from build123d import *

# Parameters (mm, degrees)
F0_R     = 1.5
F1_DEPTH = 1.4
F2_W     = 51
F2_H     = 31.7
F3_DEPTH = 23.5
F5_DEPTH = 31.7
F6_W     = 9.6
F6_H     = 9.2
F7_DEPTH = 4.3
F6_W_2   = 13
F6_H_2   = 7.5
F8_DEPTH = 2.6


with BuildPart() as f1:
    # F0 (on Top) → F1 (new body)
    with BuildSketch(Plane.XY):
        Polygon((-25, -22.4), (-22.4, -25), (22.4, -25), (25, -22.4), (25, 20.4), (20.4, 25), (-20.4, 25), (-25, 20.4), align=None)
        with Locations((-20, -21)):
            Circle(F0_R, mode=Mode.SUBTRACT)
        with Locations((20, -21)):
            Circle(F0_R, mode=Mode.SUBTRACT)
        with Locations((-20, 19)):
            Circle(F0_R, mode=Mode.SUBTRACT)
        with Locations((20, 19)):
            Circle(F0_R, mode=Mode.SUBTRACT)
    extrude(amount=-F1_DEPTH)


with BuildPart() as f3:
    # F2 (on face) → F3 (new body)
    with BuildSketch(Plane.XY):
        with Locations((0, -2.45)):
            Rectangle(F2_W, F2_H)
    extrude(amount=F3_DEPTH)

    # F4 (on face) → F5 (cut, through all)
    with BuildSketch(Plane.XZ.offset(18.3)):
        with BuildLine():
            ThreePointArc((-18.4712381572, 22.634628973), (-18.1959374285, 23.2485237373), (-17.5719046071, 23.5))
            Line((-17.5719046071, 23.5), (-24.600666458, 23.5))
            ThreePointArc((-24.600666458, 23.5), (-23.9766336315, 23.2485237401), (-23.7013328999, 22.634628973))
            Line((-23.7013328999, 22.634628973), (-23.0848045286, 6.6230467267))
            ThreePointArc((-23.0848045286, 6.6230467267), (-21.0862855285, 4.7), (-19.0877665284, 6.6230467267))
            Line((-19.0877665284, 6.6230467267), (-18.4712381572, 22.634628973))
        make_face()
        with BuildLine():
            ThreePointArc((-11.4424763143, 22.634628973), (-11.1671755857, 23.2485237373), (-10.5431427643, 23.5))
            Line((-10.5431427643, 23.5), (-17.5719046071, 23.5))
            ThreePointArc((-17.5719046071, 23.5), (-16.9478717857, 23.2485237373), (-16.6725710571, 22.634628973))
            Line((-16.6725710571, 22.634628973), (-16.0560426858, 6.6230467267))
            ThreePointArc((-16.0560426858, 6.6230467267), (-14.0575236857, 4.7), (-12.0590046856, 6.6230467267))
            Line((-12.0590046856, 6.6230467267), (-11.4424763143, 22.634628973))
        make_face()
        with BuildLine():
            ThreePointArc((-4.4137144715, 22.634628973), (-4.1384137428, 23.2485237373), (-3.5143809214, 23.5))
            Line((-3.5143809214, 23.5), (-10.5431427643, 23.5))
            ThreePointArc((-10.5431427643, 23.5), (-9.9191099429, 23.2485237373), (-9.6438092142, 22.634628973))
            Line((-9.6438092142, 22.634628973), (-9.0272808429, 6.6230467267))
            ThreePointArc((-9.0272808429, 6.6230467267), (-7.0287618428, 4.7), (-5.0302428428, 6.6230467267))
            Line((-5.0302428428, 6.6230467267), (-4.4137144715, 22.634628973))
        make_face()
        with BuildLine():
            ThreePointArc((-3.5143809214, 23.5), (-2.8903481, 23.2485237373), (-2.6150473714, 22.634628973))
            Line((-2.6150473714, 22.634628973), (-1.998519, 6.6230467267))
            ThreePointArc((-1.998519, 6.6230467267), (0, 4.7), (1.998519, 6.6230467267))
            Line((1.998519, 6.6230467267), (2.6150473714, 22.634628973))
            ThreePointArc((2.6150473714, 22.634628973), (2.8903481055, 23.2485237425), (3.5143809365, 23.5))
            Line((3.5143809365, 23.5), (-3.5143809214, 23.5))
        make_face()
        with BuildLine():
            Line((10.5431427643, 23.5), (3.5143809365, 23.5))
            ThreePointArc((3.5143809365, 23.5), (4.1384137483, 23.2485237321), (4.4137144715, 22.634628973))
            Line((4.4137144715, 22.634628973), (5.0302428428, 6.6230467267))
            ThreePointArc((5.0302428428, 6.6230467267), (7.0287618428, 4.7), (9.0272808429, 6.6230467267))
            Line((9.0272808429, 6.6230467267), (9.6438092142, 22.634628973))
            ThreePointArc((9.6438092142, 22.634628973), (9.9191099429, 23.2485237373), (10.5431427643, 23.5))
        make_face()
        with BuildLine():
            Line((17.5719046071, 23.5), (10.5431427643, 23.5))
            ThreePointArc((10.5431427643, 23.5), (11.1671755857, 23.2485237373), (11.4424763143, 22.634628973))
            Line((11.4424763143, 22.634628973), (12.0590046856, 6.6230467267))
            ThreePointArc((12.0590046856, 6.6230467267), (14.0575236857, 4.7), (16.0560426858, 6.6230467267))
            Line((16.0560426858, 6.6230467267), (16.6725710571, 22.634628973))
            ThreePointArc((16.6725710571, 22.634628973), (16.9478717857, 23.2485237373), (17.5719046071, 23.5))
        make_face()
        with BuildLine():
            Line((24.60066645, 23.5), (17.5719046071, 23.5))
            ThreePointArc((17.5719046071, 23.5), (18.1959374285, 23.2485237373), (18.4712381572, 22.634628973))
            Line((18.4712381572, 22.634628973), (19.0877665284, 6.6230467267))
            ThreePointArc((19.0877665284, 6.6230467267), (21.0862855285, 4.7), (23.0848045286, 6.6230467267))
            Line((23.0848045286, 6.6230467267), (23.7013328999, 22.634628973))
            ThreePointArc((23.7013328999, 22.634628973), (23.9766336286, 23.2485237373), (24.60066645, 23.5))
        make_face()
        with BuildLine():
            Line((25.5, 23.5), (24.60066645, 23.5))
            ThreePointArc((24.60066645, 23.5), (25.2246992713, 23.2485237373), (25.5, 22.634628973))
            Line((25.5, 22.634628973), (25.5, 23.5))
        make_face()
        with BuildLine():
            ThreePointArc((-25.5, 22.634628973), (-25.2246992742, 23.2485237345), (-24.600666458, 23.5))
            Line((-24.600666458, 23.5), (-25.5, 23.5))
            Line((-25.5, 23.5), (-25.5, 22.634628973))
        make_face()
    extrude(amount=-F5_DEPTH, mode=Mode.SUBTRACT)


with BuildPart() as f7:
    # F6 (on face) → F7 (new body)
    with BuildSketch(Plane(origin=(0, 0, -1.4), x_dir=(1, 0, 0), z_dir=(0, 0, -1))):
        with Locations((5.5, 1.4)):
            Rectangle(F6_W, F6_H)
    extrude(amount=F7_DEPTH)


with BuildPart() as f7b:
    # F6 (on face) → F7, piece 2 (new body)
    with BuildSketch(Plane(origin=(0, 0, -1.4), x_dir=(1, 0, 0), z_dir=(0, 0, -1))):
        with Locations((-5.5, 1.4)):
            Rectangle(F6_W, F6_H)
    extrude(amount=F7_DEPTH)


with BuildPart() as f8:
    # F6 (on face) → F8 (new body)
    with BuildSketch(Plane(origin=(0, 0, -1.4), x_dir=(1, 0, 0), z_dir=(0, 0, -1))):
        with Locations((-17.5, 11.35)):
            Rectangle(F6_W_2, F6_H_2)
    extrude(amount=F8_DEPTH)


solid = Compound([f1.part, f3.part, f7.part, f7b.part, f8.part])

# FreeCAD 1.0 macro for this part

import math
import FreeCAD as App
import Part
import Sketcher
from FreeCAD import Vector

doc = App.newDocument("Part")
body = doc.addObject("PartDesign::Body", "Body")

sketch1 = body.newObject("Sketcher::SketchObject", "Sketch")
sketch1.AttachmentSupport = (doc.getObject("XY_Plane"), [""])
sketch1.MapMode = "FlatFace"
sketch1.addGeometry([
    Part.LineSegment(Vector(-25, -22.4, 0), Vector(-22.4, -25, 0)),
    Part.LineSegment(Vector(-22.4, -25, 0), Vector(22.4, -25, 0)),
    Part.LineSegment(Vector(22.4, -25, 0), Vector(25, -22.4, 0)),
    Part.LineSegment(Vector(25, -22.4, 0), Vector(25, 20.4, 0)),
    Part.LineSegment(Vector(25, 20.4, 0), Vector(20.4, 25, 0)),
    Part.LineSegment(Vector(20.4, 25, 0), Vector(-20.4, 25, 0)),
    Part.LineSegment(Vector(-20.4, 25, 0), Vector(-25, 20.4, 0)),
    Part.LineSegment(Vector(-25, 20.4, 0), Vector(-25, -22.4, 0)),
    Part.Circle(Vector(-20, -21, 0), Vector(0, 0, 1), 1.5),
    Part.Circle(Vector(20, -21, 0), Vector(0, 0, 1), 1.5),
    Part.Circle(Vector(-20, 19, 0), Vector(0, 0, 1), 1.5),
    Part.Circle(Vector(20, 19, 0), Vector(0, 0, 1), 1.5),
], False)
sketch1.addConstraint([
    Sketcher.Constraint("Coincident", 0, 2, 1, 1),
    Sketcher.Constraint("Coincident", 1, 2, 2, 1),
    Sketcher.Constraint("Coincident", 2, 2, 3, 1),
    Sketcher.Constraint("Coincident", 3, 2, 4, 1),
    Sketcher.Constraint("Coincident", 4, 2, 5, 1),
    Sketcher.Constraint("Coincident", 5, 2, 6, 1),
    Sketcher.Constraint("Coincident", 6, 2, 7, 1),
    Sketcher.Constraint("Coincident", 7, 2, 0, 1),
    Sketcher.Constraint("Horizontal", 1),
    Sketcher.Constraint("Vertical", 3),
    Sketcher.Constraint("Horizontal", 5),
    Sketcher.Constraint("Vertical", 7),
    Sketcher.Constraint("Equal", 8, 9),
    Sketcher.Constraint("Equal", 9, 10),
    Sketcher.Constraint("Equal", 10, 11),
    Sketcher.Constraint("Symmetric", 8, 3, 9, 3, -2),
    Sketcher.Constraint("Symmetric", 10, 3, 11, 3, -2),
    Sketcher.Constraint("Symmetric", 3, 2, 6, 2, -2),
    Sketcher.Constraint("Perpendicular", 0, 2),
    Sketcher.Constraint("Perpendicular", 2, 4),
    Sketcher.Constraint("Perpendicular", 4, 6),
    Sketcher.Constraint("Horizontal", 2, 2, 7, 2),
    Sketcher.Constraint("Vertical", 8, 3, 10, 3),
    Sketcher.Constraint("Equal", 0, 2),
    Sketcher.Constraint("Diameter", 8, 3.0),
    Sketcher.Constraint("DistanceX", 1, 1, 1, 2, 44.8),
    Sketcher.Constraint("DistanceX", 5, 2, 5, 1, 40.8),
    Sketcher.Constraint("DistanceY", 3, 1, 3, 2, 42.8),
    Sketcher.Constraint("DistanceX", 8, 3, -1, 1, 20.0),
    Sketcher.Constraint("DistanceY", 8, 3, -1, 1, 21.0),
    Sketcher.Constraint("DistanceY", -1, 1, 10, 3, 19.0),
    Sketcher.Constraint("DistanceY", 0, 2, -1, 1, 25.0),
    Sketcher.Constraint("DistanceX", -1, 1, 2, 2, 25.0),
])
pad1 = body.newObject("PartDesign::Pad", "Pad")
pad1.Profile = sketch1
pad1.Length = 1.4
pad1.Reversed = True
body2 = doc.addObject("PartDesign::Body", "Body001")

sketch2 = body2.newObject("Sketcher::SketchObject", "Sketch001")
sketch2.AttachmentSupport = (doc.getObject("XY_Plane001"), [""])
sketch2.MapMode = "FlatFace"
sketch2.addGeometry([
    Part.LineSegment(Vector(-26, 13, 0), Vector(-26, -18, 0)),
    Part.LineSegment(Vector(-26, -18, 0), Vector(26, -18, 0)),
    Part.LineSegment(Vector(26, -18, 0), Vector(26, 13, 0)),
    Part.LineSegment(Vector(26, 13, 0), Vector(-26, 13, 0)),
], False)
sketch2.addConstraint([
    Sketcher.Constraint("Coincident", 0, 2, 1, 1),
    Sketcher.Constraint("Coincident", 1, 2, 2, 1),
    Sketcher.Constraint("Coincident", 2, 2, 3, 1),
    Sketcher.Constraint("Coincident", 3, 2, 0, 1),
    Sketcher.Constraint("Vertical", 0),
    Sketcher.Constraint("Horizontal", 1),
    Sketcher.Constraint("Vertical", 2),
    Sketcher.Constraint("Horizontal", 3),
    Sketcher.Constraint("DistanceX", 1, 1, 1, 2, 51.0),
    Sketcher.Constraint("DistanceY", 0, 2, 0, 1, 31.7),
    Sketcher.Constraint("DistanceX", 0, 2, -1, 1, 25.5),
    Sketcher.Constraint("DistanceY", 0, 2, -1, 1, 18.3),
])
pad2 = body2.newObject("PartDesign::Pad", "Pad001")
pad2.Profile = sketch2
pad2.Length = 23.5

sketch3 = body2.newObject("Sketcher::SketchObject", "Sketch002")
sketch3.AttachmentSupport = (doc.getObject("XZ_Plane001"), [""])
sketch3.MapMode = "FlatFace"
sketch3.AttachmentOffset = App.Placement(Vector(0, 0, 18.3), App.Rotation())
sketch3.addGeometry([
    Part.ArcOfCircle(Part.Circle(Vector(-17.6, 22.6, 0), Vector(0, 0, 1), 0.9), math.radians(90), math.radians(178)),
    Part.LineSegment(Vector(-17.6, 23.5, 0), Vector(-24.6, 23.5, 0)),
    Part.ArcOfCircle(Part.Circle(Vector(-24.6, 22.6, 0), Vector(0, 0, 1), 0.9), math.radians(2), math.radians(90)),
    Part.LineSegment(Vector(-23.7, 22.6, 0), Vector(-23.1, 6.6, 0)),
    Part.ArcOfCircle(Part.Circle(Vector(-21.1, 6.7, 0), Vector(0, 0, 1), 2), math.radians(-178), math.radians(-2)),
    Part.LineSegment(Vector(-19.1, 6.6, 0), Vector(-18.5, 22.6, 0)),
    Part.ArcOfCircle(Part.Circle(Vector(-10.5, 22.6, 0), Vector(0, 0, 1), 0.9), math.radians(90), math.radians(178)),
    Part.LineSegment(Vector(-10.5, 23.5, 0), Vector(-17.6, 23.5, 0)),
    Part.ArcOfCircle(Part.Circle(Vector(-17.6, 22.6, 0), Vector(0, 0, 1), 0.9), math.radians(2), math.radians(90)),
    Part.LineSegment(Vector(-16.7, 22.6, 0), Vector(-16.1, 6.6, 0)),
    Part.ArcOfCircle(Part.Circle(Vector(-14.1, 6.7, 0), Vector(0, 0, 1), 2), math.radians(-178), math.radians(-2)),
    Part.LineSegment(Vector(-12.1, 6.6, 0), Vector(-11.4, 22.6, 0)),
    Part.ArcOfCircle(Part.Circle(Vector(-3.5, 22.6, 0), Vector(0, 0, 1), 0.9), math.radians(90), math.radians(178)),
    Part.LineSegment(Vector(-3.5, 23.5, 0), Vector(-10.5, 23.5, 0)),
    Part.ArcOfCircle(Part.Circle(Vector(-10.5, 22.6, 0), Vector(0, 0, 1), 0.9), math.radians(2), math.radians(90)),
    Part.LineSegment(Vector(-9.6, 22.6, 0), Vector(-9, 6.6, 0)),
    Part.ArcOfCircle(Part.Circle(Vector(-7, 6.7, 0), Vector(0, 0, 1), 2), math.radians(-178), math.radians(-2)),
    Part.LineSegment(Vector(-5, 6.6, 0), Vector(-4.4, 22.6, 0)),
    Part.ArcOfCircle(Part.Circle(Vector(-3.5, 22.6, 0), Vector(0, 0, 1), 0.9), math.radians(2), math.radians(90)),
    Part.LineSegment(Vector(-2.6, 22.6, 0), Vector(-2, 6.6, 0)),
    Part.ArcOfCircle(Part.Circle(Vector(0, 6.7, 0), Vector(0, 0, 1), 2), math.radians(-178), math.radians(-2)),
    Part.LineSegment(Vector(2, 6.6, 0), Vector(2.6, 22.6, 0)),
    Part.ArcOfCircle(Part.Circle(Vector(3.5, 22.6, 0), Vector(0, 0, 1), 0.9), math.radians(90), math.radians(178)),
    Part.LineSegment(Vector(3.5, 23.5, 0), Vector(-3.5, 23.5, 0)),
    Part.LineSegment(Vector(10.5, 23.5, 0), Vector(3.5, 23.5, 0)),
    Part.ArcOfCircle(Part.Circle(Vector(3.5, 22.6, 0), Vector(0, 0, 1), 0.9), math.radians(2), math.radians(90)),
    Part.LineSegment(Vector(4.4, 22.6, 0), Vector(5, 6.6, 0)),
    Part.ArcOfCircle(Part.Circle(Vector(7, 6.7, 0), Vector(0, 0, 1), 2), math.radians(-178), math.radians(-2)),
    Part.LineSegment(Vector(9, 6.6, 0), Vector(9.6, 22.6, 0)),
    Part.ArcOfCircle(Part.Circle(Vector(10.5, 22.6, 0), Vector(0, 0, 1), 0.9), math.radians(90), math.radians(178)),
    Part.LineSegment(Vector(17.6, 23.5, 0), Vector(10.5, 23.5, 0)),
    Part.ArcOfCircle(Part.Circle(Vector(10.5, 22.6, 0), Vector(0, 0, 1), 0.9), math.radians(2), math.radians(90)),
    Part.LineSegment(Vector(11.4, 22.6, 0), Vector(12.1, 6.6, 0)),
    Part.ArcOfCircle(Part.Circle(Vector(14.1, 6.7, 0), Vector(0, 0, 1), 2), math.radians(-178), math.radians(-2)),
    Part.LineSegment(Vector(16.1, 6.6, 0), Vector(16.7, 22.6, 0)),
    Part.ArcOfCircle(Part.Circle(Vector(17.6, 22.6, 0), Vector(0, 0, 1), 0.9), math.radians(90), math.radians(178)),
    Part.LineSegment(Vector(24.6, 23.5, 0), Vector(17.6, 23.5, 0)),
    Part.ArcOfCircle(Part.Circle(Vector(17.6, 22.6, 0), Vector(0, 0, 1), 0.9), math.radians(2), math.radians(90)),
    Part.LineSegment(Vector(18.5, 22.6, 0), Vector(19.1, 6.6, 0)),
    Part.ArcOfCircle(Part.Circle(Vector(21.1, 6.7, 0), Vector(0, 0, 1), 2), math.radians(-178), math.radians(-2)),
    Part.LineSegment(Vector(23.1, 6.6, 0), Vector(23.7, 22.6, 0)),
    Part.ArcOfCircle(Part.Circle(Vector(24.6, 22.6, 0), Vector(0, 0, 1), 0.9), math.radians(90), math.radians(178)),
    Part.LineSegment(Vector(25.5, 23.5, 0), Vector(24.6, 23.5, 0)),
    Part.ArcOfCircle(Part.Circle(Vector(24.6, 22.6, 0), Vector(0, 0, 1), 0.9), math.radians(2), math.radians(90)),
    Part.LineSegment(Vector(25.5, 22.6, 0), Vector(25.5, 23.5, 0)),
    Part.ArcOfCircle(Part.Circle(Vector(-24.6, 22.6, 0), Vector(0, 0, 1), 0.9), math.radians(90), math.radians(178)),
    Part.LineSegment(Vector(-24.6, 23.5, 0), Vector(-25.5, 23.5, 0)),
    Part.LineSegment(Vector(-25.5, 23.5, 0), Vector(-25.5, 22.6, 0)),
], False)
sketch3.addConstraint([
    Sketcher.Constraint("Tangent", 0, 1, 1, 1),
    Sketcher.Constraint("Tangent", 1, 2, 2, 2),
    Sketcher.Constraint("Tangent", 2, 1, 3, 1),
    Sketcher.Constraint("Tangent", 3, 2, 4, 1),
    Sketcher.Constraint("Tangent", 4, 2, 5, 1),
    Sketcher.Constraint("Tangent", 5, 2, 0, 2),
    Sketcher.Constraint("Tangent", 6, 1, 7, 1),
    Sketcher.Constraint("Tangent", 7, 2, 8, 2),
    Sketcher.Constraint("Tangent", 8, 1, 9, 1),
    Sketcher.Constraint("Tangent", 9, 2, 10, 1),
    Sketcher.Constraint("Tangent", 10, 2, 11, 1),
    Sketcher.Constraint("Tangent", 11, 2, 6, 2),
    Sketcher.Constraint("Tangent", 12, 1, 13, 1),
    Sketcher.Constraint("Tangent", 13, 2, 14, 2),
    Sketcher.Constraint("Tangent", 14, 1, 15, 1),
    Sketcher.Constraint("Tangent", 15, 2, 16, 1),
    Sketcher.Constraint("Tangent", 16, 2, 17, 1),
    Sketcher.Constraint("Tangent", 17, 2, 12, 2),
    Sketcher.Constraint("Tangent", 18, 1, 19, 1),
    Sketcher.Constraint("Tangent", 19, 2, 20, 1),
    Sketcher.Constraint("Tangent", 20, 2, 21, 1),
    Sketcher.Constraint("Tangent", 21, 2, 22, 2),
    Sketcher.Constraint("Tangent", 22, 1, 23, 1),
    Sketcher.Constraint("Tangent", 23, 2, 18, 2),
    Sketcher.Constraint("Tangent", 24, 2, 25, 2),
    Sketcher.Constraint("Tangent", 25, 1, 26, 1),
    Sketcher.Constraint("Tangent", 26, 2, 27, 1),
    Sketcher.Constraint("Tangent", 27, 2, 28, 1),
    Sketcher.Constraint("Tangent", 28, 2, 29, 2),
    Sketcher.Constraint("Tangent", 29, 1, 24, 1),
    Sketcher.Constraint("Tangent", 30, 2, 31, 2),
    Sketcher.Constraint("Tangent", 31, 1, 32, 1),
    Sketcher.Constraint("Tangent", 32, 2, 33, 1),
    Sketcher.Constraint("Tangent", 33, 2, 34, 1),
    Sketcher.Constraint("Tangent", 34, 2, 35, 2),
    Sketcher.Constraint("Tangent", 35, 1, 30, 1),
    Sketcher.Constraint("Tangent", 36, 2, 37, 2),
    Sketcher.Constraint("Tangent", 37, 1, 38, 1),
    Sketcher.Constraint("Tangent", 38, 2, 39, 1),
    Sketcher.Constraint("Tangent", 39, 2, 40, 1),
    Sketcher.Constraint("Tangent", 40, 2, 41, 2),
    Sketcher.Constraint("Tangent", 41, 1, 36, 1),
    Sketcher.Constraint("Tangent", 42, 2, 43, 2),
    Sketcher.Constraint("Coincident", 43, 1, 44, 1),
    Sketcher.Constraint("Coincident", 44, 2, 42, 1),
    Sketcher.Constraint("Tangent", 45, 1, 46, 1),
    Sketcher.Constraint("Coincident", 46, 2, 47, 1),
    Sketcher.Constraint("Coincident", 47, 2, 45, 2),
    Sketcher.Constraint("Horizontal", 1),
    Sketcher.Constraint("Horizontal", 7),
    Sketcher.Constraint("Horizontal", 13),
    Sketcher.Constraint("Horizontal", 23),
    Sketcher.Constraint("Horizontal", 24),
    Sketcher.Constraint("Horizontal", 30),
    Sketcher.Constraint("Horizontal", 36),
    Sketcher.Constraint("Horizontal", 42),
    Sketcher.Constraint("Vertical", 44),
    Sketcher.Constraint("Horizontal", 46),
    Sketcher.Constraint("Vertical", 47),
    Sketcher.Constraint("Coincident", 8, 3, 0, 3),
    Sketcher.Constraint("Coincident", 14, 3, 6, 3),
    Sketcher.Constraint("Coincident", 18, 3, 12, 3),
    Sketcher.Constraint("Coincident", 25, 3, 22, 3),
    Sketcher.Constraint("Coincident", 31, 3, 29, 3),
    Sketcher.Constraint("Coincident", 37, 3, 35, 3),
    Sketcher.Constraint("Coincident", 43, 3, 41, 3),
    Sketcher.Constraint("Coincident", 45, 3, 2, 3),
    Sketcher.Constraint("Equal", 0, 2),
    Sketcher.Constraint("Equal", 2, 6),
    Sketcher.Constraint("Equal", 6, 8),
    Sketcher.Constraint("Equal", 4, 10),
    Sketcher.Constraint("Equal", 8, 12),
    Sketcher.Constraint("Equal", 12, 14),
    Sketcher.Constraint("Equal", 10, 16),
    Sketcher.Constraint("Equal", 14, 18),
    Sketcher.Constraint("Equal", 16, 20),
    Sketcher.Constraint("Equal", 18, 22),
    Sketcher.Constraint("Equal", 22, 25),
    Sketcher.Constraint("Equal", 20, 27),
    Sketcher.Constraint("Equal", 25, 29),
    Sketcher.Constraint("Equal", 29, 31),
    Sketcher.Constraint("Equal", 27, 33),
    Sketcher.Constraint("Equal", 31, 35),
    Sketcher.Constraint("Equal", 35, 37),
    Sketcher.Constraint("Equal", 33, 39),
    Sketcher.Constraint("Equal", 37, 41),
    Sketcher.Constraint("Equal", 41, 43),
    Sketcher.Constraint("Equal", 43, 45),
    Sketcher.Constraint("Symmetric", 16, 3, 27, 3, -2),
    Sketcher.Constraint("Symmetric", 10, 3, 33, 3, -2),
    Sketcher.Constraint("Symmetric", 4, 3, 39, 3, -2),
    Sketcher.Constraint("Symmetric", 19, 2, 20, 2, -2),
    Sketcher.Constraint("Symmetric", 43, 1, 47, 2, -2),
    Sketcher.Constraint("Parallel", 3, 9),
    Sketcher.Constraint("Parallel", 5, 11),
    Sketcher.Constraint("Parallel", 9, 15),
    Sketcher.Constraint("Parallel", 11, 17),
    Sketcher.Constraint("Parallel", 15, 19),
    Sketcher.Constraint("Parallel", 17, 21),
    Sketcher.Constraint("Parallel", 21, 28),
    Sketcher.Constraint("Parallel", 28, 34),
    Sketcher.Constraint("Horizontal", 4, 3, 10, 3),
    Sketcher.Constraint("Horizontal", 10, 3, 16, 3),
    Sketcher.Constraint("Horizontal", 16, 3, 20, 3),
    Sketcher.Constraint("Horizontal", 40, 2, 43, 1),
    Sketcher.Constraint("Radius", 4, 2.0),
    Sketcher.Constraint("Radius", 0, 0.9),
    Sketcher.Constraint("DistanceY", -1, 1, 0, 3, 22.6),
    Sketcher.Constraint("DistanceY", -1, 1, 4, 3, 6.7),
    Sketcher.Constraint("DistanceX", -1, 1, 43, 1, 25.5),
])
pocket1 = body2.newObject("PartDesign::Pocket", "Pocket")
pocket1.Profile = sketch3
pocket1.Type = "ThroughAll"
body3 = doc.addObject("PartDesign::Body", "Body002")

sketch4 = body3.newObject("Sketcher::SketchObject", "Sketch003")
sketch4.AttachmentSupport = (doc.getObject("XY_Plane002"), [""])
sketch4.MapMode = "FlatFace"
sketch4.AttachmentOffset = App.Placement(Vector(0, 0, -1.4), App.Rotation())
sketch4.addGeometry([
    Part.LineSegment(Vector(1, -6, 0), Vector(1, 3, 0)),
    Part.LineSegment(Vector(1, 3, 0), Vector(10, 3, 0)),
    Part.LineSegment(Vector(10, 3, 0), Vector(10, -6, 0)),
    Part.LineSegment(Vector(10, -6, 0), Vector(1, -6, 0)),
], False)
sketch4.addConstraint([
    Sketcher.Constraint("Coincident", 0, 2, 1, 1),
    Sketcher.Constraint("Coincident", 1, 2, 2, 1),
    Sketcher.Constraint("Coincident", 2, 2, 3, 1),
    Sketcher.Constraint("Coincident", 3, 2, 0, 1),
    Sketcher.Constraint("Vertical", 0),
    Sketcher.Constraint("Horizontal", 1),
    Sketcher.Constraint("Vertical", 2),
    Sketcher.Constraint("Horizontal", 3),
    Sketcher.Constraint("DistanceX", 1, 1, 1, 2, 9.6),
    Sketcher.Constraint("DistanceY", 0, 1, 0, 2, 9.2),
    Sketcher.Constraint("DistanceY", 2, 2, -1, 1, 6.0),
    Sketcher.Constraint("DistanceX", -1, 1, 0, 2, 0.7),
])
pad3 = body3.newObject("PartDesign::Pad", "Pad002")
pad3.Profile = sketch4
pad3.Length = 4.3
pad3.Reversed = True
body4 = doc.addObject("PartDesign::Body", "Body003")

sketch5 = body4.newObject("Sketcher::SketchObject", "Sketch004")
sketch5.AttachmentSupport = (doc.getObject("XY_Plane003"), [""])
sketch5.MapMode = "FlatFace"
sketch5.AttachmentOffset = App.Placement(Vector(0, 0, -1.4), App.Rotation())
sketch5.addGeometry([
    Part.LineSegment(Vector(-10, -6, 0), Vector(-10, 3, 0)),
    Part.LineSegment(Vector(-10, 3, 0), Vector(-1, 3, 0)),
    Part.LineSegment(Vector(-1, 3, 0), Vector(-1, -6, 0)),
    Part.LineSegment(Vector(-1, -6, 0), Vector(-10, -6, 0)),
], False)
sketch5.addConstraint([
    Sketcher.Constraint("Coincident", 0, 2, 1, 1),
    Sketcher.Constraint("Coincident", 1, 2, 2, 1),
    Sketcher.Constraint("Coincident", 2, 2, 3, 1),
    Sketcher.Constraint("Coincident", 3, 2, 0, 1),
    Sketcher.Constraint("Vertical", 0),
    Sketcher.Constraint("Horizontal", 1),
    Sketcher.Constraint("Vertical", 2),
    Sketcher.Constraint("Horizontal", 3),
    Sketcher.Constraint("DistanceX", 1, 1, 1, 2, 9.6),
    Sketcher.Constraint("DistanceY", 0, 1, 0, 2, 9.2),
    Sketcher.Constraint("DistanceY", 2, 2, -1, 1, 6.0),
    Sketcher.Constraint("DistanceX", 0, 2, -1, 1, 10.3),
])
pad4 = body4.newObject("PartDesign::Pad", "Pad003")
pad4.Profile = sketch5
pad4.Length = 4.3
pad4.Reversed = True
body5 = doc.addObject("PartDesign::Body", "Body004")

sketch6 = body5.newObject("Sketcher::SketchObject", "Sketch005")
sketch6.AttachmentSupport = (doc.getObject("XY_Plane004"), [""])
sketch6.MapMode = "FlatFace"
sketch6.AttachmentOffset = App.Placement(Vector(0, 0, -1.4), App.Rotation())
sketch6.addGeometry([
    Part.LineSegment(Vector(-24, -15, 0), Vector(-24, -8, 0)),
    Part.LineSegment(Vector(-24, -8, 0), Vector(-11, -8, 0)),
    Part.LineSegment(Vector(-11, -8, 0), Vector(-11, -15, 0)),
    Part.LineSegment(Vector(-11, -15, 0), Vector(-24, -15, 0)),
], False)
sketch6.addConstraint([
    Sketcher.Constraint("Coincident", 0, 2, 1, 1),
    Sketcher.Constraint("Coincident", 1, 2, 2, 1),
    Sketcher.Constraint("Coincident", 2, 2, 3, 1),
    Sketcher.Constraint("Coincident", 3, 2, 0, 1),
    Sketcher.Constraint("Vertical", 0),
    Sketcher.Constraint("Horizontal", 1),
    Sketcher.Constraint("Vertical", 2),
    Sketcher.Constraint("Horizontal", 3),
    Sketcher.Constraint("DistanceX", 1, 1, 1, 2, 13.0),
    Sketcher.Constraint("DistanceY", 0, 1, 0, 2, 7.5),
    Sketcher.Constraint("DistanceX", 0, 2, -1, 1, 24.0),
    Sketcher.Constraint("DistanceY", 0, 2, -1, 1, 7.6),
])
pad5 = body5.newObject("PartDesign::Pad", "Pad004")
pad5.Profile = sketch6
pad5.Length = 2.6
pad5.Reversed = True

doc.recompute()
